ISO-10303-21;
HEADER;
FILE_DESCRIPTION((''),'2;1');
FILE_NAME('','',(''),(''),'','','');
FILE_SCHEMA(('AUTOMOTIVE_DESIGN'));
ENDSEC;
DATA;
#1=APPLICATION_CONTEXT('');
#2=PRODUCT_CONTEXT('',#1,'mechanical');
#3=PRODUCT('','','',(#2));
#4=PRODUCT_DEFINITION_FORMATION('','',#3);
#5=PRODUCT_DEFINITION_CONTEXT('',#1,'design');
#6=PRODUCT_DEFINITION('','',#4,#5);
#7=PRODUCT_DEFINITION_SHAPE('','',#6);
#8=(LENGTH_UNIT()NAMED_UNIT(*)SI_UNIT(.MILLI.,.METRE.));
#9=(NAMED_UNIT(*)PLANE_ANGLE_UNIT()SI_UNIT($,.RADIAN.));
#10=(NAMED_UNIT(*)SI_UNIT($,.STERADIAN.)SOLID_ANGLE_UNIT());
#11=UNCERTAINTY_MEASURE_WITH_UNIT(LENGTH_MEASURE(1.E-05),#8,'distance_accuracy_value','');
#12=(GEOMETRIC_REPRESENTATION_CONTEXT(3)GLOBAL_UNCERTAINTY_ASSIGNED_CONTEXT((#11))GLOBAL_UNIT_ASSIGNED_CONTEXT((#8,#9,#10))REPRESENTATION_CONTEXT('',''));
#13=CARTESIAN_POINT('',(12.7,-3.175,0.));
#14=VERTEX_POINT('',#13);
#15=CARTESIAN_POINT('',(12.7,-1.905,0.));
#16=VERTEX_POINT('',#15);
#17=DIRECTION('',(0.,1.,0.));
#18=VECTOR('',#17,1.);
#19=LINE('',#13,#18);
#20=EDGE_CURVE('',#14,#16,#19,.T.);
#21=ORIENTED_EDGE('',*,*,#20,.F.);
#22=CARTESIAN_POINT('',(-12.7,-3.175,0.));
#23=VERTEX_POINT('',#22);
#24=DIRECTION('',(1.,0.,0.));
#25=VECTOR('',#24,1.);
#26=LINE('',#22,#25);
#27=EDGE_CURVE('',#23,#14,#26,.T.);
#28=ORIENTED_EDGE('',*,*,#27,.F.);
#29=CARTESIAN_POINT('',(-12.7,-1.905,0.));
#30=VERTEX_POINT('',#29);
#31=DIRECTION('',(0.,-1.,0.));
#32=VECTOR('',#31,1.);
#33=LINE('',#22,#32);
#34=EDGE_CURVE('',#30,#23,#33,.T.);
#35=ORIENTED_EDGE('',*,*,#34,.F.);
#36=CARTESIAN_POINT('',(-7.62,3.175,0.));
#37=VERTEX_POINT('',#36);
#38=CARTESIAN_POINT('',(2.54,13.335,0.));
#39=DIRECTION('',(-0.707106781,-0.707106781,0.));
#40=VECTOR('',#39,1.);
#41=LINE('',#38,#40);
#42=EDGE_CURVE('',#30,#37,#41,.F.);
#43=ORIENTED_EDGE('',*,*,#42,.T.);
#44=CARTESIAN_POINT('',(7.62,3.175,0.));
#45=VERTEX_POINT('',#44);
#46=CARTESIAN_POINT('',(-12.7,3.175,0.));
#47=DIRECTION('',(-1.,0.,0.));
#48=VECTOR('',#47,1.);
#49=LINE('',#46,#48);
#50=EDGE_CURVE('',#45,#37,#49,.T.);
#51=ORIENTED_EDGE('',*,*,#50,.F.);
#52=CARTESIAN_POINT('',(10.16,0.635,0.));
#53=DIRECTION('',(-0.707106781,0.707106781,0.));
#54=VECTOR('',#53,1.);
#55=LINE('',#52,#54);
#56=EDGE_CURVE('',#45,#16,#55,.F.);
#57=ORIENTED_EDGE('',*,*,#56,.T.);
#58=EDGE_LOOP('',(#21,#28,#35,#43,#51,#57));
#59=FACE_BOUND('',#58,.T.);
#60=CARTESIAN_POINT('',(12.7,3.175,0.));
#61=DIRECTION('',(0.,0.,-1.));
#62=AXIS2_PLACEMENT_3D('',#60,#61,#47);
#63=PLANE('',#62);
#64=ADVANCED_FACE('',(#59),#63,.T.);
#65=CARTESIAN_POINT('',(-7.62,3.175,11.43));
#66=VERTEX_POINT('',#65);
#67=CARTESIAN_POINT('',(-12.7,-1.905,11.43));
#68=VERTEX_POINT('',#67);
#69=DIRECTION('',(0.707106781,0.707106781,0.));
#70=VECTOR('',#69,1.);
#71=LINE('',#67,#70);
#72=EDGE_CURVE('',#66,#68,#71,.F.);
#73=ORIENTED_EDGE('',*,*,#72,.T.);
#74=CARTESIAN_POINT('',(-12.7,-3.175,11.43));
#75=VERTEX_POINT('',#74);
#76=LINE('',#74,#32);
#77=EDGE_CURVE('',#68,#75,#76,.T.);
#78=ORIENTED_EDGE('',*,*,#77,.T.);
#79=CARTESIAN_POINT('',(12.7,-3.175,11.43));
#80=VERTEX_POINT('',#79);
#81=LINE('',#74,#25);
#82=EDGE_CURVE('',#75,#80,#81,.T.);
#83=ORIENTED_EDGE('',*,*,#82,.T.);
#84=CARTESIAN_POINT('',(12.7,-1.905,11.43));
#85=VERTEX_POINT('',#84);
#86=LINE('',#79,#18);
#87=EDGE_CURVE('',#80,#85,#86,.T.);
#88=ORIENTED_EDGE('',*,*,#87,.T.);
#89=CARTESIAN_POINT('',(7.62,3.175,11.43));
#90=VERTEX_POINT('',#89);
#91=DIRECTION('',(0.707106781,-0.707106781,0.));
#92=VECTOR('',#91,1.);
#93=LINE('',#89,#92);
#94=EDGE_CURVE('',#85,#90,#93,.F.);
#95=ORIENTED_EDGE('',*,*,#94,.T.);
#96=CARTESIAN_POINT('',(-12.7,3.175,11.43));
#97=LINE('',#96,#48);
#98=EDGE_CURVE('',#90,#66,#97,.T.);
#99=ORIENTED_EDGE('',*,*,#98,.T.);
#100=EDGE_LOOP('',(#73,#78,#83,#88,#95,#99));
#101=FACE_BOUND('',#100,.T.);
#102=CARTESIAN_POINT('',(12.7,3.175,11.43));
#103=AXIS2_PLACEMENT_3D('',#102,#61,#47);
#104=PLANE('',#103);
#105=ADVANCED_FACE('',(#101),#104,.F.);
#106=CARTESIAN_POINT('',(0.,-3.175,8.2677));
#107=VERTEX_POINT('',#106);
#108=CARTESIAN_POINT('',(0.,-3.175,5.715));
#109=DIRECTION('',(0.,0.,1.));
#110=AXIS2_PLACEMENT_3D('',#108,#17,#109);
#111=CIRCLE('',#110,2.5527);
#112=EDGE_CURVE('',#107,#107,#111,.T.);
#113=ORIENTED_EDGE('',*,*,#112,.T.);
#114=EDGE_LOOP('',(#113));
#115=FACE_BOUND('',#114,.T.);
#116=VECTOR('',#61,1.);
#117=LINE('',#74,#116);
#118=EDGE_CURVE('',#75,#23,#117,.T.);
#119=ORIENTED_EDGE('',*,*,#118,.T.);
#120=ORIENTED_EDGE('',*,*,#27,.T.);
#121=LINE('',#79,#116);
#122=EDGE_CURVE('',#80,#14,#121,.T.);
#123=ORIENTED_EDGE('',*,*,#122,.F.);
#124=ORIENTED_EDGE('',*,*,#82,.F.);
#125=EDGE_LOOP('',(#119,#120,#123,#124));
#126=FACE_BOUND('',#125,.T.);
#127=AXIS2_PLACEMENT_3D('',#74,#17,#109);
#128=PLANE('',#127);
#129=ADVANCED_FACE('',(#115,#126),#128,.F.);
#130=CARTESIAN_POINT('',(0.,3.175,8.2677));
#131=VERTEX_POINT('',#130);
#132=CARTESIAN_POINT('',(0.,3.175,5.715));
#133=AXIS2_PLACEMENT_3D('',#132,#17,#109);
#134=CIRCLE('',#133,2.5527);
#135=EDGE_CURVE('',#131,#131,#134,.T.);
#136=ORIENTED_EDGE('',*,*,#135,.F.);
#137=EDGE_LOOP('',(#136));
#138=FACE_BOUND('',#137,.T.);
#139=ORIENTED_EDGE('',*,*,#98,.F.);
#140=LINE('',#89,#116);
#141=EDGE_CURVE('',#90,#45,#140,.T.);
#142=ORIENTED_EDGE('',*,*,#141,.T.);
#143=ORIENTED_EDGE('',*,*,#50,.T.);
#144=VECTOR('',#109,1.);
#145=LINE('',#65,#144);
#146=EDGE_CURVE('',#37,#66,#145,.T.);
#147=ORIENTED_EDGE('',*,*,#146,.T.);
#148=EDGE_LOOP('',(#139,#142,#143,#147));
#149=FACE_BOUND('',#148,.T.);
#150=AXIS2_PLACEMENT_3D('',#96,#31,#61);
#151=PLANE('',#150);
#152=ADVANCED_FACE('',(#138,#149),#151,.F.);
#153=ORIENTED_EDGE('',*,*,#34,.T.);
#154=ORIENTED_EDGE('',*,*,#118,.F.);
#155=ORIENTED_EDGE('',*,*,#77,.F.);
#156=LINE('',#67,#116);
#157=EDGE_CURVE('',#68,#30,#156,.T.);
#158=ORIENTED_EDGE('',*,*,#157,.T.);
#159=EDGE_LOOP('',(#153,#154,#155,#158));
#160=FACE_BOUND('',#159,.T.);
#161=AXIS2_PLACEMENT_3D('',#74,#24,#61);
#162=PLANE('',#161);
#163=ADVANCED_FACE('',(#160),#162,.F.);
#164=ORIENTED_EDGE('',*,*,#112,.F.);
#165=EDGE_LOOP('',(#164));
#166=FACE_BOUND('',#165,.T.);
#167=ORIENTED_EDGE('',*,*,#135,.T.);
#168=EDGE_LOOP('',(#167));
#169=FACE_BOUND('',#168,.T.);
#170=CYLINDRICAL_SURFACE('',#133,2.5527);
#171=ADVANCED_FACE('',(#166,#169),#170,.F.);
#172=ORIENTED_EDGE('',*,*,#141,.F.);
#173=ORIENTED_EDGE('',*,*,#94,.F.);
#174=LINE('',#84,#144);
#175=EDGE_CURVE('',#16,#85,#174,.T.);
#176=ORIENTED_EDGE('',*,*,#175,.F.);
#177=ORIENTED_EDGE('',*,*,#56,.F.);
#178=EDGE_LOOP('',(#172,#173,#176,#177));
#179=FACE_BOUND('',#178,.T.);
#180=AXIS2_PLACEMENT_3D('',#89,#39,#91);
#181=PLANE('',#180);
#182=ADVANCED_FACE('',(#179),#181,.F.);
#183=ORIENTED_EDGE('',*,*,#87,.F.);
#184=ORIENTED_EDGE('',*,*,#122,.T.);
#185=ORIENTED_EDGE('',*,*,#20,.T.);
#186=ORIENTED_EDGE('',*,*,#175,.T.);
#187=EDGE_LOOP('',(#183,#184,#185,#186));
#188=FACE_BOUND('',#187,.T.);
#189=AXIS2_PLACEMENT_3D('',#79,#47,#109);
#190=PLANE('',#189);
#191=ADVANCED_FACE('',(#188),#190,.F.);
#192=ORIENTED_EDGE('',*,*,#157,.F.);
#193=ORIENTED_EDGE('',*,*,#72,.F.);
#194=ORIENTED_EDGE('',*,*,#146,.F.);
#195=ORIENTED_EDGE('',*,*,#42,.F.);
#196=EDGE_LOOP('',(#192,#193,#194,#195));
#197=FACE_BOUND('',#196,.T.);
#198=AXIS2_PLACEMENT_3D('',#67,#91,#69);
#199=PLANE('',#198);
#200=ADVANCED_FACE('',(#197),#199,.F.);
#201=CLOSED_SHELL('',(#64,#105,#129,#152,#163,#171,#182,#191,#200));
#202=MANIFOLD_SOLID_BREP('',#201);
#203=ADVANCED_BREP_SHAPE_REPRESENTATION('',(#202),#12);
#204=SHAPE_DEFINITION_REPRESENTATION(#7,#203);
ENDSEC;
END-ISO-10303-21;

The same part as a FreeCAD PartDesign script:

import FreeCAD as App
import Part
import Sketcher
Q = App.Units.Quantity


def edges_at(feature, points):
    """Names of the edges that pass closest to the given points."""
    edges = feature.Shape.Edges
    near = lambda p: min(range(len(edges)), key=lambda i: edges[i].distToShape(Part.Vertex(*p))[0])
    return sorted({f"Edge{near(p) + 1}" for p in points})


def add_polygon(sketch, points):
    """Adds a closed chain of lines whose ends are joined by coincident constraints."""
    first, n = sketch.GeometryCount, len(points)
    for a, b in zip(points, points[1:] + points[:1]):
        sketch.addGeometry(Part.LineSegment(App.Vector(*a, 0), App.Vector(*b, 0)), False)
    for i in range(n):
        sketch.addConstraint(Sketcher.Constraint("Coincident", first + i, 2, first + (i + 1) % n, 1))

doc = App.newDocument("Part")
body = doc.addObject("PartDesign::Body", "Body")

sketch1 = body.newObject("Sketcher::SketchObject", "Sketch")
sketch1.AttachmentSupport = (doc.getObject("XY_Plane"), [""])
sketch1.MapMode = "FlatFace"
add_polygon(sketch1, [(-13, 3), (-13, -3), (13, -3), (13, 3)])
sketch1.addConstraint(Sketcher.Constraint("Vertical", 0))
sketch1.addConstraint(Sketcher.Constraint("Horizontal", 1))
sketch1.addConstraint(Sketcher.Constraint("Vertical", 2))
sketch1.addConstraint(Sketcher.Constraint("Horizontal", 3))
sketch1.addConstraint(Sketcher.Constraint("Symmetric", 0, 2, 2, 2, -1, 1))
sketch1.addConstraint(Sketcher.Constraint("DistanceX", 1, 1, 1, 2, Q("1 in")))
sketch1.addConstraint(Sketcher.Constraint("DistanceY", 0, 2, 0, 1, Q("0.25 in")))
pad1 = body.newObject("PartDesign::Pad", "Pad")
pad1.Profile = sketch1
pad1.Length = Q("0.45 in")
doc.recompute()

chamfer = body.newObject("PartDesign::Chamfer", "Chamfer")
chamfer.Base = (pad1, edges_at(pad1, [(-12.7, 3.175, 5.715), (12.7, 3.175, 5.715)]))
chamfer.Size = Q("0.2 in")

sketch2 = body.newObject("Sketcher::SketchObject", "Sketch001")
sketch2.AttachmentSupport = (doc.getObject("XZ_Plane"), [""])
sketch2.MapMode = "FlatFace"
sketch2.AttachmentOffset = App.Placement(App.Vector(0, 0, -0.125 * 25.4), App.Rotation())
sketch2.addGeometry(Part.Circle(App.Vector(0, 5.7, 0), App.Vector(0, 0, 1), 2.6), False)
sketch2.addConstraint(Sketcher.Constraint("PointOnObject", 0, 3, -2))
sketch2.addConstraint(Sketcher.Constraint("Diameter", 0, Q("0.201 in")))
sketch2.addConstraint(Sketcher.Constraint("DistanceY", -1, 1, 0, 3, Q("0.225 in")))
doc.recompute()
hole = body.newObject("PartDesign::Hole", "Hole")
hole.Profile = sketch2
hole.ThreadType = "None"
hole.Diameter = Q("0.201 in")
hole.DepthType = "ThroughAll"
hole.Reversed = True

doc.recompute()
